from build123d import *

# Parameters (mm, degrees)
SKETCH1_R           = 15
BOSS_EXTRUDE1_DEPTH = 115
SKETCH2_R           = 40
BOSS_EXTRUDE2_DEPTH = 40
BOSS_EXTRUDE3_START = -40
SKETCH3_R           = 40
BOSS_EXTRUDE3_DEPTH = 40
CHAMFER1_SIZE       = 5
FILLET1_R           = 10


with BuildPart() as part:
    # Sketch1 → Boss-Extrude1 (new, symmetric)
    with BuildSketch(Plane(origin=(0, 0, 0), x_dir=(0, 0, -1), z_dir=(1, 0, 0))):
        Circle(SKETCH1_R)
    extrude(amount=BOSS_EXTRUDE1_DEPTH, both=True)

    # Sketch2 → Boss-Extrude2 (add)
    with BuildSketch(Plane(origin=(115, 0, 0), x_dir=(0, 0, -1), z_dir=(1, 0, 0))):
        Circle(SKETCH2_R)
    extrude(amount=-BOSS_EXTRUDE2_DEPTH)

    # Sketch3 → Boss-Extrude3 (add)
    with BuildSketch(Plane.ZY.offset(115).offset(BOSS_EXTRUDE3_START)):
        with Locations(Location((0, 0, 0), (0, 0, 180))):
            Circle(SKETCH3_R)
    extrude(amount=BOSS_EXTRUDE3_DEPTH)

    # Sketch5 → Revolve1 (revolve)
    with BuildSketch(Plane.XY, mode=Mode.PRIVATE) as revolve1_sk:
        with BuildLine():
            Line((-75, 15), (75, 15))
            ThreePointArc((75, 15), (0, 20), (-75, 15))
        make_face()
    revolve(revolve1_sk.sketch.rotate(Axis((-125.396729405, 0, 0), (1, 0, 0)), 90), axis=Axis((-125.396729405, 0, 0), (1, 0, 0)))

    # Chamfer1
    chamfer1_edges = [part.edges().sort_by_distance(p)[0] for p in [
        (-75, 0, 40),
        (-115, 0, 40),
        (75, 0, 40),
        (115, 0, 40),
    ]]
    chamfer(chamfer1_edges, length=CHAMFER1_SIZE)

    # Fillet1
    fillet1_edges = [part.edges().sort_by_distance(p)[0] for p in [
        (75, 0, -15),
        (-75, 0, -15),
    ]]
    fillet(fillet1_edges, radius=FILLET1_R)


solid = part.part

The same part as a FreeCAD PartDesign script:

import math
import FreeCAD as App
import Part
import Sketcher


def edges_at(feature, points):
    """Names of the edges that pass closest to the given points."""
    edges = feature.Shape.Edges
    near = lambda p: min(range(len(edges)), key=lambda i: edges[i].distToShape(Part.Vertex(*p))[0])
    return sorted({f"Edge{near(p) + 1}" for p in points})

doc = App.newDocument("Part")
params = doc.addObject("Spreadsheet::Sheet", "Params")
for row, (alias, value) in enumerate([
    ("sketch1_diameter", "30 mm"),
    ("pad1_length", "230 mm"),
    ("sketch2_diameter", "80 mm"),
    ("pad2_length", "40 mm"),
    ("sketch3_diameter", "80 mm"),
    ("pad3_length", "40 mm"),
    ("sketch4_radius", "565 mm"),
    ("sketch4_width", "150 mm"),
    ("revolution_angle", "360 deg"),
    ("chamfer_size", "5 mm"),
    ("fillet_radius", "10 mm"),
], start=1):
    params.set(f"A{row}", alias)
    params.set(f"B{row}", "=" + value)
    params.setAlias(f"B{row}", alias)

body = doc.addObject("PartDesign::Body", "Body")

# Sketch on YZ plane
sketch1 = body.newObject("Sketcher::SketchObject", "Sketch")
sketch1.AttachmentSupport = (doc.getObject("YZ_Plane"), [""])
sketch1.MapMode = "FlatFace"
sketch1.addGeometry(Part.Circle(App.Vector(0, 0, 0), App.Vector(0, 0, 1), 15), False)
sketch1.addConstraint(Sketcher.Constraint("Coincident", 0, 3, -1, 1))
sketch1.addConstraint(Sketcher.Constraint("Diameter", 0, 30.0))
sketch1.setExpression("Constraints[1]", "Params.sketch1_diameter")
pad1 = body.newObject("PartDesign::Pad", "Pad")
pad1.Profile = sketch1
pad1.setExpression("Length", "Params.pad1_length")
pad1.Midplane = True

# Sketch on YZ plane
sketch2 = body.newObject("Sketcher::SketchObject", "Sketch001")
sketch2.AttachmentSupport = (doc.getObject("YZ_Plane"), [""])
sketch2.MapMode = "FlatFace"
sketch2.AttachmentOffset = App.Placement(App.Vector(0, 0, 115), App.Rotation())
sketch2.addGeometry(Part.Circle(App.Vector(0, 0, 0), App.Vector(0, 0, 1), 40), False)
sketch2.addConstraint(Sketcher.Constraint("Coincident", 0, 3, -1, 1))
sketch2.addConstraint(Sketcher.Constraint("Diameter", 0, 80.0))
sketch2.setExpression("Constraints[1]", "Params.sketch2_diameter")
pad2 = body.newObject("PartDesign::Pad", "Pad001")
pad2.Profile = sketch2
pad2.setExpression("Length", "Params.pad2_length")
pad2.Reversed = True

# Sketch on YZ plane
sketch3 = body.newObject("Sketcher::SketchObject", "Sketch002")
sketch3.AttachmentSupport = (doc.getObject("YZ_Plane"), [""])
sketch3.MapMode = "FlatFace"
sketch3.AttachmentOffset = App.Placement(App.Vector(0, 0, -75), App.Rotation())
sketch3.addGeometry(Part.Circle(App.Vector(0, 0, 0), App.Vector(0, 0, 1), 40), False)
sketch3.addConstraint(Sketcher.Constraint("Coincident", 0, 3, -1, 1))
sketch3.addConstraint(Sketcher.Constraint("Diameter", 0, 80.0))
sketch3.setExpression("Constraints[1]", "Params.sketch3_diameter")
pad3 = body.newObject("PartDesign::Pad", "Pad002")
pad3.Profile = sketch3
pad3.setExpression("Length", "Params.pad3_length")
pad3.Reversed = True

# Sketch on XY plane
sketch4 = body.newObject("Sketcher::SketchObject", "Sketch003")
sketch4.AttachmentSupport = (doc.getObject("XY_Plane"), [""])
sketch4.MapMode = "FlatFace"
sketch4.addGeometry(Part.LineSegment(App.Vector(-75, 15, 0), App.Vector(75, 15, 0)), False)
sketch4.addGeometry(Part.ArcOfCircle(Part.Circle(App.Vector(0, -545, 0), App.Vector(0, 0, 1), 565), math.radians(82.37), math.radians(97.63)), False)
sketch4.addConstraint(Sketcher.Constraint("Coincident", 0, 1, 1, 2))
sketch4.addConstraint(Sketcher.Constraint("Coincident", 1, 1, 0, 2))
sketch4.addConstraint(Sketcher.Constraint("Horizontal", 0))
sketch4.addConstraint(Sketcher.Constraint("PointOnObject", 1, 3, -2))
sketch4.addConstraint(Sketcher.Constraint("Radius", 1, 565.0))
sketch4.addConstraint(Sketcher.Constraint("DistanceX", 0, 1, 0, 2, 150.0))
sketch4.addConstraint(Sketcher.Constraint("DistanceY", 1, 3, -1, 1, 545.0))
sketch4.setExpression("Constraints[4]", "Params.sketch4_radius")
sketch4.setExpression("Constraints[5]", "Params.sketch4_width")
revolution = body.newObject("PartDesign::Revolution", "Revolution")
revolution.Profile = sketch4
revolution.ReferenceAxis = (sketch4, ["H_Axis"])
revolution.setExpression("Angle", "Params.revolution_angle")
doc.recompute()

chamfer = body.newObject("PartDesign::Chamfer", "Chamfer")
chamfer.Base = (revolution, edges_at(revolution, [
    (-75, 0, 40),
    (-115, 0, 40),
    (75, 0, 40),
    (115, 0, 40),
]))
chamfer.setExpression("Size", "Params.chamfer_size")
doc.recompute()

fillet = body.newObject("PartDesign::Fillet", "Fillet")
fillet.Base = (chamfer, edges_at(chamfer, [(75, 0, -15), (-75, 0, -15)]))
fillet.setExpression("Radius", "Params.fillet_radius")

doc.recompute()
